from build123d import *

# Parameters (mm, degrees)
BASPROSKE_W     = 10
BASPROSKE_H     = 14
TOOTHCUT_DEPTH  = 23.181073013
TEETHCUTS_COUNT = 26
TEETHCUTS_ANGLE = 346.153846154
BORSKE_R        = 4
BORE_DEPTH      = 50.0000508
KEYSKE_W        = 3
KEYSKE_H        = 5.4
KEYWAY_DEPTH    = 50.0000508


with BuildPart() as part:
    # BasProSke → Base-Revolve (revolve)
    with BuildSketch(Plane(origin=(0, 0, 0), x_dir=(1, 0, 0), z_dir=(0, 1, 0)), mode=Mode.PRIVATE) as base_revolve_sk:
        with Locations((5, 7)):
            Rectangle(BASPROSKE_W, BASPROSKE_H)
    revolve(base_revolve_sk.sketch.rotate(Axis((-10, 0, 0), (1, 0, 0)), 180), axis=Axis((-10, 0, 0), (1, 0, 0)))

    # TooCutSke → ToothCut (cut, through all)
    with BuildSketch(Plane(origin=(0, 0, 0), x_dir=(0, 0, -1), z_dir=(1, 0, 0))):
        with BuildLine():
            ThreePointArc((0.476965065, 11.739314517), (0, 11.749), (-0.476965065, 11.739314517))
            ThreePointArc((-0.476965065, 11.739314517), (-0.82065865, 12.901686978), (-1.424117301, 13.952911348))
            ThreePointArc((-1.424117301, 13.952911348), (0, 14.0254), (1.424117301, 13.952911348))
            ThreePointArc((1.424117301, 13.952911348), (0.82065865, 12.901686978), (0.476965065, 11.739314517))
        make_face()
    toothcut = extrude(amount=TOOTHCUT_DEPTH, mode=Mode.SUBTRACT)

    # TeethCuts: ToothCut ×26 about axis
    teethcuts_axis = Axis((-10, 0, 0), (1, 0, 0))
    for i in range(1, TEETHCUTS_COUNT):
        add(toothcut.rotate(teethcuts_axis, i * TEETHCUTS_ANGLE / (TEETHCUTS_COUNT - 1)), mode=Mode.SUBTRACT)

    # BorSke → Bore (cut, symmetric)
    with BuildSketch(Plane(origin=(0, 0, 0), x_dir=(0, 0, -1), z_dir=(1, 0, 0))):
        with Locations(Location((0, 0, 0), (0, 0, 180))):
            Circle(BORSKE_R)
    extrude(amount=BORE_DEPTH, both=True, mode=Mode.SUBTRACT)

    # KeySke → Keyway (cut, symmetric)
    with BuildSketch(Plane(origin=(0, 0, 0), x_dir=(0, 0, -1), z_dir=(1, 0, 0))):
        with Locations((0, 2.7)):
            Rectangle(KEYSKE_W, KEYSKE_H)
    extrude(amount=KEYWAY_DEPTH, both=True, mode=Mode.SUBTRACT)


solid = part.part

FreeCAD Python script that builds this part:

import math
import FreeCAD as App
import Part
import Sketcher
from FreeCAD import Vector
Q = App.Units.Quantity


def add_polygon(sketch, points):
    """Adds a closed chain of lines whose ends are joined by coincident constraints."""
    first, n = sketch.GeometryCount, len(points)
    for a, b in zip(points, points[1:] + points[:1]):
        sketch.addGeometry(Part.LineSegment(App.Vector(*a, 0), App.Vector(*b, 0)), False)
    for i in range(n):
        sketch.addConstraint(Sketcher.Constraint("Coincident", first + i, 2, first + (i + 1) % n, 1))

doc = App.newDocument("Part")
body = doc.addObject("PartDesign::Body", "Body")

# Sketch on XZ plane
sketch1 = body.newObject("Sketcher::SketchObject", "Sketch")
sketch1.AttachmentSupport = (doc.getObject("XZ_Plane"), [""])
sketch1.MapMode = "FlatFace"
add_polygon(sketch1, [(0, -14), (0, 0), (10, 0), (10, -14)])  # lines 0-3
sketch1.addConstraint(Sketcher.Constraint("Vertical", 0))
sketch1.addConstraint(Sketcher.Constraint("Horizontal", 1))
sketch1.addConstraint(Sketcher.Constraint("Vertical", 2))
sketch1.addConstraint(Sketcher.Constraint("Horizontal", 3))
sketch1.addConstraint(Sketcher.Constraint("Coincident", 0, 2, -1, 1))
sketch1.addConstraint(Sketcher.Constraint("DistanceX", 1, 1, 1, 2, Q("10 mm")))
sketch1.addConstraint(Sketcher.Constraint("DistanceY", 0, 1, 0, 2, Q("14 mm")))
revolution = body.newObject("PartDesign::Revolution", "Revolution")
revolution.Profile = sketch1
revolution.ReferenceAxis = (sketch1, ["H_Axis"])
revolution.Angle = 360

# Sketch on YZ plane
sketch2 = body.newObject("Sketcher::SketchObject", "Sketch001")
sketch2.AttachmentSupport = (doc.getObject("YZ_Plane"), [""])
sketch2.MapMode = "FlatFace"
sketch2.addGeometry(Part.ArcOfCircle(Part.Circle(Vector(0, 0, 0), Vector(0, 0, 1), 11.7), math.radians(-2.33), math.radians(2.33)), False)
sketch2.addGeometry(Part.ArcOfCircle(Part.Circle(Vector(10.9, -5.6, 0), Vector(0, 0, 1), 5.2), math.radians(53), math.radians(80)), False)
sketch2.addGeometry(Part.ArcOfCircle(Part.Circle(Vector(0, 0, 0), Vector(0, 0, 1), 14), math.radians(-5.83), math.radians(5.83)), False)
sketch2.addGeometry(Part.ArcOfCircle(Part.Circle(Vector(10.9, 5.6, 0), Vector(0, 0, 1), 5.2), math.radians(-80), math.radians(-53)), False)
sketch2.addConstraint(Sketcher.Constraint("Coincident", 0, 1, 1, 2))
sketch2.addConstraint(Sketcher.Constraint("Coincident", 1, 1, 2, 1))
sketch2.addConstraint(Sketcher.Constraint("Coincident", 2, 2, 3, 2))
sketch2.addConstraint(Sketcher.Constraint("Coincident", 3, 1, 0, 2))
sketch2.addConstraint(Sketcher.Constraint("Coincident", 0, 3, -1, 1))
sketch2.addConstraint(Sketcher.Constraint("Coincident", 2, 3, -1, 1))
sketch2.addConstraint(Sketcher.Constraint("Equal", 1, 3))
sketch2.addConstraint(Sketcher.Constraint("Symmetric", 1, 3, 3, 3, -1))
sketch2.addConstraint(Sketcher.Constraint("Radius", 1, Q("5.2 mm")))
sketch2.addConstraint(Sketcher.Constraint("Radius", 0, Q("11.749 mm")))
sketch2.addConstraint(Sketcher.Constraint("Radius", 2, Q("14.0254 mm")))
sketch2.addConstraint(Sketcher.Constraint("DistanceY", 1, 3, -1, 1, Q("5.60141 mm")))
sketch2.addConstraint(Sketcher.Constraint("DistanceX", -1, 1, 1, 1, Q("13.952911 mm")))
pocket1 = body.newObject("PartDesign::Pocket", "Pocket")
pocket1.Profile = sketch2
pocket1.Type = "ThroughAll"
pocket1.Reversed = True
doc.recompute()

polarpattern = body.newObject("PartDesign::PolarPattern", "PolarPattern")
polarpattern.Originals = [pocket1]
polarpattern.Axis = (doc.getObject("X_Axis"), [""])
polarpattern.Angle = 360
polarpattern.Occurrences = 26
body.Tip = polarpattern

# Sketch on YZ plane
sketch3 = body.newObject("Sketcher::SketchObject", "Sketch002")
sketch3.AttachmentSupport = (doc.getObject("YZ_Plane"), [""])
sketch3.MapMode = "FlatFace"
sketch3.addGeometry(Part.Circle(Vector(0, 0, 0), Vector(0, 0, 1), 4), False)
sketch3.addConstraint(Sketcher.Constraint("Coincident", 0, 3, -1, 1))
sketch3.addConstraint(Sketcher.Constraint("Diameter", 0, Q("8 mm")))
pocket2 = body.newObject("PartDesign::Pocket", "Pocket001")
pocket2.Profile = sketch3
pocket2.Length = 100.000102
pocket2.Midplane = True

# Sketch on YZ plane
sketch4 = body.newObject("Sketcher::SketchObject", "Sketch003")
sketch4.AttachmentSupport = (doc.getObject("YZ_Plane"), [""])
sketch4.MapMode = "FlatFace"
add_polygon(sketch4, [(5.4, 1.5), (0, 1.5), (0, -1.5), (5.4, -1.5)])  # lines 0-3
sketch4.addConstraint(Sketcher.Constraint("Horizontal", 0))
sketch4.addConstraint(Sketcher.Constraint("Vertical", 1))
sketch4.addConstraint(Sketcher.Constraint("Horizontal", 2))
sketch4.addConstraint(Sketcher.Constraint("Vertical", 3))
sketch4.addConstraint(Sketcher.Constraint("Symmetric", 0, 2, 1, 2, -1, 1))
sketch4.addConstraint(Sketcher.Constraint("DistanceY", 1, 2, 1, 1, Q("3 mm")))
sketch4.addConstraint(Sketcher.Constraint("DistanceX", 0, 2, 0, 1, Q("5.4 mm")))
pocket3 = body.newObject("PartDesign::Pocket", "Pocket002")
pocket3.Profile = sketch4
pocket3.Length = 100.000102
pocket3.Midplane = True

doc.recompute()
